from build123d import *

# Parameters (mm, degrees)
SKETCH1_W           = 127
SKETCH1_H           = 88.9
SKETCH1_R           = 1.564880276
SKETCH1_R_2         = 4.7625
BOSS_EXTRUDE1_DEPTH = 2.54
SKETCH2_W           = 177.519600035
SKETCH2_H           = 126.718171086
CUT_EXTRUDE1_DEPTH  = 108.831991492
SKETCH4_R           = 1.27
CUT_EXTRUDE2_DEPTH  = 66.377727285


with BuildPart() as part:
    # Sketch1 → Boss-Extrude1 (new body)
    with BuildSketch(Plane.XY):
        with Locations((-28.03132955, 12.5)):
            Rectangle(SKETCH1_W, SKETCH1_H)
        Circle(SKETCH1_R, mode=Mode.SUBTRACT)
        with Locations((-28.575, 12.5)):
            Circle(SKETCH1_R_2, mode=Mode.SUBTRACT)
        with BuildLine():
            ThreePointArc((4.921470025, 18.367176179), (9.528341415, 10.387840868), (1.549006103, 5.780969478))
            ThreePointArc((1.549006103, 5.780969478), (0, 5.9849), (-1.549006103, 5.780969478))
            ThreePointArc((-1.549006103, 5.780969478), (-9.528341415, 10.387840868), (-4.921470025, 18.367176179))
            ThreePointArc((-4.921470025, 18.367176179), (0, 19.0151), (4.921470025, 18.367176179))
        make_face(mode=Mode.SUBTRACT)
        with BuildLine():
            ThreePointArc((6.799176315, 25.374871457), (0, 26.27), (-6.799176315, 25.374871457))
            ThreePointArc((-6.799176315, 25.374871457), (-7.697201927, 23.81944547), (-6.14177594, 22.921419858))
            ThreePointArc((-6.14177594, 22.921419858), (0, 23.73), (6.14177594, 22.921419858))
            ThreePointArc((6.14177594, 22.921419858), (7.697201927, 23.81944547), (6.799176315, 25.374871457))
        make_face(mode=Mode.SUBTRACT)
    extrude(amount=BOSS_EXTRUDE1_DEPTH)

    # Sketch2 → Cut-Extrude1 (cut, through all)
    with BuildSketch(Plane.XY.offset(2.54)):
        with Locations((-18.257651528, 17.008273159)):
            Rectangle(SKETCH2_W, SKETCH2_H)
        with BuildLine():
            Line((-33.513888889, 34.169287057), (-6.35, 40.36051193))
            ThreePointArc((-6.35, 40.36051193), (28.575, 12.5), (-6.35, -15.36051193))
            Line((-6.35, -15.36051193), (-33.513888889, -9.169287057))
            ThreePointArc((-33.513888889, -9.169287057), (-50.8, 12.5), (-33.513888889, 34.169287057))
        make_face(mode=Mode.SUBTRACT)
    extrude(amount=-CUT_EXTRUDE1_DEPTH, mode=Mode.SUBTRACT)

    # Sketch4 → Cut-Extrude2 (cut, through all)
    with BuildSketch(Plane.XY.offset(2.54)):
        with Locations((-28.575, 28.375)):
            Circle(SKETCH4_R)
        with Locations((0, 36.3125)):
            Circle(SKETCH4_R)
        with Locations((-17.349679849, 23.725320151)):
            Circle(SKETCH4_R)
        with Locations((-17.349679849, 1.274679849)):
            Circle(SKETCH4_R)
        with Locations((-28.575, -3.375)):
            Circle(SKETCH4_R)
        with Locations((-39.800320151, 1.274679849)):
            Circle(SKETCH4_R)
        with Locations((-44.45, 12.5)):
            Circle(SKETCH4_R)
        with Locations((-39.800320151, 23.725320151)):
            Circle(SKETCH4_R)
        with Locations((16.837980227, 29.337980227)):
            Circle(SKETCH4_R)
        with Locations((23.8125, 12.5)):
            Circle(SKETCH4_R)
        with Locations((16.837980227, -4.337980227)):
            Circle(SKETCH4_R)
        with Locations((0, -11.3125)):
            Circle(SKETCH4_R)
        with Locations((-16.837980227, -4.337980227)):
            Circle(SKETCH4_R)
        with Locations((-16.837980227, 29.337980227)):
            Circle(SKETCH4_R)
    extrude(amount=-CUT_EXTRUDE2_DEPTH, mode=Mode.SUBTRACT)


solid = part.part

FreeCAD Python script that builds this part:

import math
import FreeCAD as App
import Part
import Sketcher

V = App.Vector
Q = App.Units.Quantity

doc = App.newDocument("Part")
body = doc.addObject("PartDesign::Body", "Body")

sketch1 = body.newObject("Sketcher::SketchObject", "Sketch")
sketch1.AttachmentSupport = (doc.getObject("XY_Plane"), [""])
sketch1.MapMode = "FlatFace"
sketch1.addGeometry([
    Part.LineSegment(V(-91.53133, 56.95, 0), V(-91.53133, -31.95, 0)),
    Part.LineSegment(V(-91.53133, -31.95, 0), V(35.46867, -31.95, 0)),
    Part.LineSegment(V(35.46867, -31.95, 0), V(35.46867, 56.95, 0)),
    Part.LineSegment(V(35.46867, 56.95, 0), V(-91.53133, 56.95, 0)),
    Part.Circle(V(0, 0, 0), V(0, 0, 1), 1.56488),
    Part.ArcOfCircle(Part.Circle(V(0, 0, 0), V(0, 0, 1), 19.0151), math.radians(75), math.radians(105)),
    Part.ArcOfCircle(Part.Circle(V(3.235238, 12.074073, 0), V(0, 0, 1), 6.5151), math.radians(-105), math.radians(75)),
    Part.ArcOfCircle(Part.Circle(V(0, 0, 0), V(0, 0, 1), 5.9849), math.radians(75), math.radians(105)),
    Part.ArcOfCircle(Part.Circle(V(-3.235238, 12.074073, 0), V(0, 0, 1), 6.5151), math.radians(105), math.radians(285)),
    Part.Circle(V(-28.575, 12.5, 0), V(0, 0, 1), 4.7625),
    Part.ArcOfCircle(Part.Circle(V(0, 0, 0), V(0, 0, 1), 26.27), math.radians(75), math.radians(105)),
    Part.ArcOfCircle(Part.Circle(V(6.470476, 24.148146, 0), V(0, 0, 1), 1.27), math.radians(-105), math.radians(75)),
    Part.ArcOfCircle(Part.Circle(V(0, 0, 0), V(0, 0, 1), 23.73), math.radians(75), math.radians(105)),
    Part.ArcOfCircle(Part.Circle(V(-6.470476, 24.148146, 0), V(0, 0, 1), 1.27), math.radians(105), math.radians(285)),
], False)
sketch1.addConstraint([
    Sketcher.Constraint("Coincident", 0, 2, 1, 1),
    Sketcher.Constraint("Coincident", 1, 2, 2, 1),
    Sketcher.Constraint("Coincident", 2, 2, 3, 1),
    Sketcher.Constraint("Coincident", 3, 2, 0, 1),
    Sketcher.Constraint("Tangent", 5, 1, 6, 2),
    Sketcher.Constraint("Tangent", 6, 1, 7, 1),
    Sketcher.Constraint("Tangent", 7, 2, 8, 2),
    Sketcher.Constraint("Tangent", 8, 1, 5, 2),
    Sketcher.Constraint("Tangent", 10, 1, 11, 2),
    Sketcher.Constraint("Tangent", 11, 1, 12, 1),
    Sketcher.Constraint("Tangent", 12, 2, 13, 2),
    Sketcher.Constraint("Tangent", 13, 1, 10, 2),
    Sketcher.Constraint("Vertical", 0),
    Sketcher.Constraint("Horizontal", 1),
    Sketcher.Constraint("Vertical", 2),
    Sketcher.Constraint("Horizontal", 3),
    Sketcher.Constraint("Coincident", 4, 3, -1, 1),
    Sketcher.Constraint("Coincident", 5, 3, -1, 1),
    Sketcher.Constraint("Coincident", 7, 3, -1, 1),
    Sketcher.Constraint("Coincident", 10, 3, -1, 1),
    Sketcher.Constraint("Coincident", 12, 3, -1, 1),
    Sketcher.Constraint("Horizontal", 6, 3, 8, 3),
    Sketcher.Constraint("Horizontal", 11, 3, 13, 3),
    Sketcher.Constraint("DistanceX", 1, 1, 1, 2, Q("5 in")),
    Sketcher.Constraint("Radius", 11, Q("0.05 in")),
    Sketcher.Constraint("Diameter", 9, Q("0.375 in")),
    Sketcher.Constraint("DistanceY", 0, 2, 0, 1, Q("3.5 in")),
    Sketcher.Constraint("Radius", 6, Q("0.2565 in")),
    Sketcher.Constraint("Radius", 5, 19.0151),
    Sketcher.Constraint("Radius", 10, 26.27),
    Sketcher.Constraint("DistanceY", 0, 2, 9, 3, Q("1.75 in")),
    Sketcher.Constraint("Diameter", 4, 3.129761),
    Sketcher.Constraint("DistanceX", 9, 3, -1, 1, Q("1.125 in")),
    Sketcher.Constraint("DistanceY", -1, 1, 9, 3, 12.5),
    Sketcher.Constraint("DistanceY", 6, 3, 10, 1, 13.300799),
    Sketcher.Constraint("DistanceX", 11, 1, 11, 3, 0.3287),
    Sketcher.Constraint("DistanceX", 0, 2, -1, 1, 91.53133),
])
pad1 = body.newObject("PartDesign::Pad", "Pad")
pad1.Profile = sketch1
pad1.Length = Q("0.1 in")

sketch2 = body.newObject("Sketcher::SketchObject", "Sketch001")
sketch2.AttachmentSupport = (doc.getObject("XY_Plane"), [""])
sketch2.MapMode = "FlatFace"
sketch2.AttachmentOffset = App.Placement(V(0, 0, 0.1 * 25.4), App.Rotation())
sketch2.addGeometry([
    Part.LineSegment(V(-107.017452, 80.367359, 0), V(-107.017452, -46.350812, 0)),
    Part.LineSegment(V(-107.017452, -46.350812, 0), V(70.502148, -46.350812, 0)),
    Part.LineSegment(V(70.502148, -46.350812, 0), V(70.502148, 80.367359, 0)),
    Part.LineSegment(V(70.502148, 80.367359, 0), V(-107.017452, 80.367359, 0)),
    Part.ArcOfCircle(Part.Circle(V(-28.575, 12.5, 0), V(0, 0, 1), 22.225), math.radians(102.839588), math.radians(257.160412)),
    Part.LineSegment(V(-33.513889, 34.169287, 0), V(-6.35, 40.360512, 0)),
    Part.ArcOfCircle(Part.Circle(V(0, 12.5, 0), V(0, 0, 1), 28.575), math.radians(-102.839588), math.radians(102.839588)),
    Part.LineSegment(V(-6.35, -15.360512, 0), V(-33.513889, -9.169287, 0)),
], False)
sketch2.addConstraint([
    Sketcher.Constraint("Coincident", 0, 2, 1, 1),
    Sketcher.Constraint("Coincident", 1, 2, 2, 1),
    Sketcher.Constraint("Coincident", 2, 2, 3, 1),
    Sketcher.Constraint("Coincident", 3, 2, 0, 1),
    Sketcher.Constraint("Tangent", 4, 1, 5, 1),
    Sketcher.Constraint("Tangent", 5, 2, 6, 2),
    Sketcher.Constraint("Tangent", 6, 1, 7, 1),
    Sketcher.Constraint("Tangent", 7, 2, 4, 2),
    Sketcher.Constraint("Vertical", 0),
    Sketcher.Constraint("Horizontal", 1),
    Sketcher.Constraint("Vertical", 2),
    Sketcher.Constraint("Horizontal", 3),
    Sketcher.Constraint("PointOnObject", 6, 3, -2),
    Sketcher.Constraint("Horizontal", 4, 3, 6, 3),
    Sketcher.Constraint("Radius", 4, Q("0.875 in")),
    Sketcher.Constraint("Radius", 6, Q("1.125 in")),
    Sketcher.Constraint("DistanceX", 5, 2, -1, 1, Q("0.25 in")),
    Sketcher.Constraint("DistanceX", 1, 1, 1, 2, 177.5196),
    Sketcher.Constraint("DistanceY", 0, 2, 0, 1, 126.718171),
    Sketcher.Constraint("DistanceY", -1, 1, 4, 3, 12.5),
    Sketcher.Constraint("DistanceY", 0, 2, 4, 1, 80.520099),
    Sketcher.Constraint("DistanceX", 0, 2, -1, 1, 107.017452),
])
pocket1 = body.newObject("PartDesign::Pocket", "Pocket")
pocket1.Profile = sketch2
pocket1.Type = "ThroughAll"

sketch3 = body.newObject("Sketcher::SketchObject", "Sketch002")
sketch3.AttachmentSupport = (doc.getObject("XY_Plane"), [""])
sketch3.MapMode = "FlatFace"
sketch3.AttachmentOffset = App.Placement(V(0, 0, 0.1 * 25.4), App.Rotation())
sketch3.addGeometry([
    Part.Circle(V(-28.575, 28.375, 0), V(0, 0, 1), 1.27),
    Part.Circle(V(0, 36.3125, 0), V(0, 0, 1), 1.27),
    Part.Circle(V(-17.34968, 23.72532, 0), V(0, 0, 1), 1.27),
    Part.Circle(V(-17.34968, 1.27468, 0), V(0, 0, 1), 1.27),
    Part.Circle(V(-28.575, -3.375, 0), V(0, 0, 1), 1.27),
    Part.Circle(V(-39.80032, 1.27468, 0), V(0, 0, 1), 1.27),
    Part.Circle(V(-44.45, 12.5, 0), V(0, 0, 1), 1.27),
    Part.Circle(V(-39.80032, 23.72532, 0), V(0, 0, 1), 1.27),
    Part.Circle(V(16.83798, 29.33798, 0), V(0, 0, 1), 1.27),
    Part.Circle(V(23.8125, 12.5, 0), V(0, 0, 1), 1.27),
    Part.Circle(V(16.83798, -4.33798, 0), V(0, 0, 1), 1.27),
    Part.Circle(V(0, -11.3125, 0), V(0, 0, 1), 1.27),
    Part.Circle(V(-16.83798, -4.33798, 0), V(0, 0, 1), 1.27),
    Part.Circle(V(-16.83798, 29.33798, 0), V(0, 0, 1), 1.27),
], False)
sketch3.addConstraint([
    Sketcher.Constraint("Equal", 0, 1),
    Sketcher.Constraint("Equal", 1, 2),
    Sketcher.Constraint("Equal", 2, 3),
    Sketcher.Constraint("Equal", 3, 4),
    Sketcher.Constraint("Equal", 4, 5),
    Sketcher.Constraint("Equal", 5, 6),
    Sketcher.Constraint("Equal", 6, 7),
    Sketcher.Constraint("Equal", 7, 8),
    Sketcher.Constraint("Equal", 8, 9),
    Sketcher.Constraint("Equal", 9, 10),
    Sketcher.Constraint("Equal", 10, 11),
    Sketcher.Constraint("Equal", 11, 12),
    Sketcher.Constraint("Equal", 12, 13),
    Sketcher.Constraint("Symmetric", 10, 3, 12, 3, -2),
    Sketcher.Constraint("Symmetric", 8, 3, 13, 3, -2),
    Sketcher.Constraint("PointOnObject", 1, 3, -2),
    Sketcher.Constraint("PointOnObject", 11, 3, -2),
    Sketcher.Constraint("Horizontal", 3, 3, 5, 3),
    Sketcher.Constraint("Horizontal", 2, 3, 7, 3),
    Sketcher.Constraint("Horizontal", 6, 3, 9, 3),
    Sketcher.Constraint("Vertical", 2, 3, 3, 3),
    Sketcher.Constraint("Vertical", 0, 3, 4, 3),
    Sketcher.Constraint("Vertical", 5, 3, 7, 3),
    Sketcher.Constraint("Vertical", 8, 3, 10, 3),
    Sketcher.Constraint("Diameter", 0, Q("0.1 in")),
    Sketcher.Constraint("DistanceX", 6, 3, -1, 1, Q("1.75 in")),
    Sketcher.Constraint("DistanceY", 4, 3, 0, 3, Q("1.25 in")),
    Sketcher.Constraint("DistanceX", 0, 3, -1, 1, Q("1.125 in")),
    Sketcher.Constraint("DistanceX", -1, 1, 9, 3, Q("0.9375 in")),
    Sketcher.Constraint("DistanceY", 0, 3, 1, 3, Q("0.3125 in")),
    Sketcher.Constraint("DistanceY", 6, 3, 0, 3, Q("0.625 in")),
    Sketcher.Constraint("DistanceY", 11, 3, 4, 3, Q("0.3125 in")),
    Sketcher.Constraint("DistanceY", -1, 1, 0, 3, 28.375),
    Sketcher.Constraint("DistanceY", 3, 3, 8, 3, 28.0633),
    Sketcher.Constraint("DistanceY", 10, 3, 2, 3, 28.0633),
    Sketcher.Constraint("DistanceX", 3, 3, 12, 3, 0.5117),
    Sketcher.Constraint("DistanceX", 2, 3, -1, 1, 17.34968),
    Sketcher.Constraint("DistanceY", -1, 1, 2, 3, 23.72532),
    Sketcher.Constraint("DistanceY", -1, 1, 3, 3, 1.27468),
    Sketcher.Constraint("DistanceX", 5, 3, -1, 1, 39.80032),
])
pocket2 = body.newObject("PartDesign::Pocket", "Pocket001")
pocket2.Profile = sketch3
pocket2.Type = "ThroughAll"

doc.recompute()
